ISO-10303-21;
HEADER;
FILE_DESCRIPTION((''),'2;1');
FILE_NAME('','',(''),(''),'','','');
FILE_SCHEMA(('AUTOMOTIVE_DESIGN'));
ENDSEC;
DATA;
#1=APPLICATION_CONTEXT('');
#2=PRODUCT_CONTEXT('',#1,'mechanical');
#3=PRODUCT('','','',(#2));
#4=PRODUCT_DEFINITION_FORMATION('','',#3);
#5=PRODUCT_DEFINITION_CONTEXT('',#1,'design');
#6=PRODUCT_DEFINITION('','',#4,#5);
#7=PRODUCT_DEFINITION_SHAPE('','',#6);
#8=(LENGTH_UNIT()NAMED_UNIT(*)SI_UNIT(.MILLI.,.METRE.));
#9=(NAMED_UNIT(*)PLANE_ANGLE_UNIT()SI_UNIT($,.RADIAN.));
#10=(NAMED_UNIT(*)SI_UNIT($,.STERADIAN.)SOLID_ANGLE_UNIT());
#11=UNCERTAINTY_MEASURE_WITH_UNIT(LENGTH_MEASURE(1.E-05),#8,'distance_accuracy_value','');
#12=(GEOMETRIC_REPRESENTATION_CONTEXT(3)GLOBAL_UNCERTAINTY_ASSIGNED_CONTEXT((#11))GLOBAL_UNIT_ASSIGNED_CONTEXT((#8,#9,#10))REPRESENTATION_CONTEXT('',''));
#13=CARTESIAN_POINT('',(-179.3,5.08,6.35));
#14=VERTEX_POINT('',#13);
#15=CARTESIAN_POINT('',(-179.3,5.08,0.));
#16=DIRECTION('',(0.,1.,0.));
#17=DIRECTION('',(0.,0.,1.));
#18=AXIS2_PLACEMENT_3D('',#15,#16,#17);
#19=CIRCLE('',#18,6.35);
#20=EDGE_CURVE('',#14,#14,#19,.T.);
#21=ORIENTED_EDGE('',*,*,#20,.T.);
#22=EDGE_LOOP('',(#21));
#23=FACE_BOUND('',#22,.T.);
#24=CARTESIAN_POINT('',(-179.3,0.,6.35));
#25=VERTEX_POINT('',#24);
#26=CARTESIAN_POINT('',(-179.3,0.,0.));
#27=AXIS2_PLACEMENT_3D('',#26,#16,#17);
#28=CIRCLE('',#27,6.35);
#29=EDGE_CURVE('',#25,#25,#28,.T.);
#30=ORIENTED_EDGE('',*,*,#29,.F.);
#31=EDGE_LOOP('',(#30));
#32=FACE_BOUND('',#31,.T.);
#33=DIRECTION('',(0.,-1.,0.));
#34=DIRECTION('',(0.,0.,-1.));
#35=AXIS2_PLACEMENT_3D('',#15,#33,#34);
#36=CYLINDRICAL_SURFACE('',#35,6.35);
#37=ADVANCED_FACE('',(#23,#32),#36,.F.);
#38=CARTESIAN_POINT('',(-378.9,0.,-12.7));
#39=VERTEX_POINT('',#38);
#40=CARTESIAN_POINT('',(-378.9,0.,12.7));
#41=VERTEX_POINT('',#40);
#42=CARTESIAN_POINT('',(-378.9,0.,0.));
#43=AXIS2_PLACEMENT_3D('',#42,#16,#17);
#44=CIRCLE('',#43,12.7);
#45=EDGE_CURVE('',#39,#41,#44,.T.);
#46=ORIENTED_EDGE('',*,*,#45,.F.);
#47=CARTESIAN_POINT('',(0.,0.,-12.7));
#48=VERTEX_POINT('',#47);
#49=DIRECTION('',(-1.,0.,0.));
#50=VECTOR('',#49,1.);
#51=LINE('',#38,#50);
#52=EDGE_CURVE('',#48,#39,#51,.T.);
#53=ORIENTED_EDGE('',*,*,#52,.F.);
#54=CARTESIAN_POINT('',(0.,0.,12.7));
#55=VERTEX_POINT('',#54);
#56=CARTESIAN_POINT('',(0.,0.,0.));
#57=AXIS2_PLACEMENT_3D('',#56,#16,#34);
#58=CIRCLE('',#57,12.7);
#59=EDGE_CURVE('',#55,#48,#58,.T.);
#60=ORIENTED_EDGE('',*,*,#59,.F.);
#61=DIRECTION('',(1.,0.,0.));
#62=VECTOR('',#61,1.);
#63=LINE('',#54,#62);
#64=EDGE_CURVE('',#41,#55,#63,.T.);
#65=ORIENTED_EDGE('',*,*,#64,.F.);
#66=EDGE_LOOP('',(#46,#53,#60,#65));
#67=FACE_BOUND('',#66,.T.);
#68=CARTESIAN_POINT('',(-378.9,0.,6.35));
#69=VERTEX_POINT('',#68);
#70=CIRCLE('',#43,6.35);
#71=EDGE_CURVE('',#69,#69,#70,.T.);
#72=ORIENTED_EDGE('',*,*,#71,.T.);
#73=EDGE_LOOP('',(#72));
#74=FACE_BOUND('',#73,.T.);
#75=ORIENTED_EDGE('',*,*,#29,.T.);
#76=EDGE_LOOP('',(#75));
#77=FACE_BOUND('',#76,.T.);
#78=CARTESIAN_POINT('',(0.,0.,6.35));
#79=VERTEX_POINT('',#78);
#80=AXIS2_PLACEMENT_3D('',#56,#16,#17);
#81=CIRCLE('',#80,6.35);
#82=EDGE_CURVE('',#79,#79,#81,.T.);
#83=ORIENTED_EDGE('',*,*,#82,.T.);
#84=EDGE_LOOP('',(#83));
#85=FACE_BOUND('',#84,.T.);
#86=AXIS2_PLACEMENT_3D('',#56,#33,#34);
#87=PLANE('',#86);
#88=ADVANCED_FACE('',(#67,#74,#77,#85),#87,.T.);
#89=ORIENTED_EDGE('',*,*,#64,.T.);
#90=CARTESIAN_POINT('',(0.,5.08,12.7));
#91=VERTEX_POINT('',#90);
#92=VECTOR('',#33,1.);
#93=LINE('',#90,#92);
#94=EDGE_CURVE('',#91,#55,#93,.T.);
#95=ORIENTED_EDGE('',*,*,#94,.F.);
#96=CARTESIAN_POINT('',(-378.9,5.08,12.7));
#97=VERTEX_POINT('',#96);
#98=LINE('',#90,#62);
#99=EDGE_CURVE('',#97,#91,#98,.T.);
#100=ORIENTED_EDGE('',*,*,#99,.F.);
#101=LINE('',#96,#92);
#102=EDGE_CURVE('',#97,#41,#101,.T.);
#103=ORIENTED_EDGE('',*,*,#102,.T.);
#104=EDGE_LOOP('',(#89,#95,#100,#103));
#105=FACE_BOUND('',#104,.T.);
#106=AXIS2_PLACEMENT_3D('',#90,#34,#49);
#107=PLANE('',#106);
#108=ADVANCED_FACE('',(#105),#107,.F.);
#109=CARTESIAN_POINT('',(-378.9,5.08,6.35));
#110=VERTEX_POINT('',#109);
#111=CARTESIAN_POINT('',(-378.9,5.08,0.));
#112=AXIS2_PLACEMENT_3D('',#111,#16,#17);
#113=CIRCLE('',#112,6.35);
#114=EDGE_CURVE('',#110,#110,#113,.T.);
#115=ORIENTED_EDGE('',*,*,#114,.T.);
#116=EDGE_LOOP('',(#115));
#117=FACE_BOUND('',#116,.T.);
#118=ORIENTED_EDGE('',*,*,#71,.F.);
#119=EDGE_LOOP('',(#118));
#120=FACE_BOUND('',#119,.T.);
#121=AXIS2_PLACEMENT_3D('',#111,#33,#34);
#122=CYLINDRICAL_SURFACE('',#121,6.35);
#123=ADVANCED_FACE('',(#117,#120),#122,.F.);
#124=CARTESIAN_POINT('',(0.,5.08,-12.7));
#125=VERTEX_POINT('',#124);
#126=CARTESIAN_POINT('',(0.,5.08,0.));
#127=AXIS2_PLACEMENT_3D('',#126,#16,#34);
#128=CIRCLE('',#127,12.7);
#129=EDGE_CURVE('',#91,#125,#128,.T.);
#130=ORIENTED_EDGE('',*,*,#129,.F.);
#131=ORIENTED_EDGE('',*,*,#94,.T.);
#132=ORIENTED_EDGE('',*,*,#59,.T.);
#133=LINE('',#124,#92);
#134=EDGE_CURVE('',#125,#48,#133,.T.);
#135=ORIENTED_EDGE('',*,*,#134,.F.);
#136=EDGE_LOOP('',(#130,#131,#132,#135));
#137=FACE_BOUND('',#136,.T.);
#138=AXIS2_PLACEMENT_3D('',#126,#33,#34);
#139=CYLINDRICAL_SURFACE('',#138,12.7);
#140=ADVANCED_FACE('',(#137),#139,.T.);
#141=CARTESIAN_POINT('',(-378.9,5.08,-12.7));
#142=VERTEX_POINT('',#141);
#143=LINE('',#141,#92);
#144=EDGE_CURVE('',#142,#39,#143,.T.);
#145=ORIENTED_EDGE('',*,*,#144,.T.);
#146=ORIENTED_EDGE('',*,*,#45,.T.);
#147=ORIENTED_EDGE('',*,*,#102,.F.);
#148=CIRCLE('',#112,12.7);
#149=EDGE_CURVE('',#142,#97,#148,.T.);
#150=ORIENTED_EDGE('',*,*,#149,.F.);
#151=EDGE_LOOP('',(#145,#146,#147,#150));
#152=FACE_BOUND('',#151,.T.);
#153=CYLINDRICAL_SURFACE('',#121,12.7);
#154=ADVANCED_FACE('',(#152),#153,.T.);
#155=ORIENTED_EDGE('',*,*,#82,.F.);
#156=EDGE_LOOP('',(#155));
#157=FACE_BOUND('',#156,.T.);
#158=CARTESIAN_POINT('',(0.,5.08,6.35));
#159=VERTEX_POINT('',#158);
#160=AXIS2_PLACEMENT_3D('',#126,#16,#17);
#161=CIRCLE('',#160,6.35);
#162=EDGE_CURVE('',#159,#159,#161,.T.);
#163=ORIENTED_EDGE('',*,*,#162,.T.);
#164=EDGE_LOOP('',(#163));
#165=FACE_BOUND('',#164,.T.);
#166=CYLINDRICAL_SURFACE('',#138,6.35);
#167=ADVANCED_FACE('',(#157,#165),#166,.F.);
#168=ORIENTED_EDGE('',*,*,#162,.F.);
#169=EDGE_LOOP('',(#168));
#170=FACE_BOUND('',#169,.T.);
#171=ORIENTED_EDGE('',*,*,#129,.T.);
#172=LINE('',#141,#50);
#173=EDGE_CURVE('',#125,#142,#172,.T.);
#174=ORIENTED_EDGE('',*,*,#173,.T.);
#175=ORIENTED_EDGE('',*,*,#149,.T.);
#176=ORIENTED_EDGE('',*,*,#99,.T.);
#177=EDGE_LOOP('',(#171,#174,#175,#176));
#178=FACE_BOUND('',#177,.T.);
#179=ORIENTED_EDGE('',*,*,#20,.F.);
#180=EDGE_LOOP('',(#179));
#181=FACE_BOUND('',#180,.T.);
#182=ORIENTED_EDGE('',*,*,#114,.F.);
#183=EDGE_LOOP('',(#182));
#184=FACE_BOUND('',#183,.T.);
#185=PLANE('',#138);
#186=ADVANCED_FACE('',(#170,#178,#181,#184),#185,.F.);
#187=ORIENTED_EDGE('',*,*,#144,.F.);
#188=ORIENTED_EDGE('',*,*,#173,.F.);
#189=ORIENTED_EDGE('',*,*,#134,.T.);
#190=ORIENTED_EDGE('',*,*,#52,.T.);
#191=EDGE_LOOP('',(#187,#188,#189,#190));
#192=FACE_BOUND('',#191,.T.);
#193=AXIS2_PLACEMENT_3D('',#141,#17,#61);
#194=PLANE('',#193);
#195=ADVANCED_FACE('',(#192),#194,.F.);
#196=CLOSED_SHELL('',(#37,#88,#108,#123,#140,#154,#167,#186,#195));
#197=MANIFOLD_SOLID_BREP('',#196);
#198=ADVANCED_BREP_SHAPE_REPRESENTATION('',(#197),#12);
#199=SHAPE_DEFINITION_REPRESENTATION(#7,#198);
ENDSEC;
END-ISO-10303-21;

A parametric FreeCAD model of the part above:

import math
import FreeCAD as App
import Part
import Sketcher

V = App.Vector
Q = App.Units.Quantity

doc = App.newDocument("Part")
body = doc.addObject("PartDesign::Body", "Body")

# Sketch on XZ plane
sketch1 = body.newObject("Sketcher::SketchObject", "Sketch")
sketch1.AttachmentSupport = (doc.getObject("XZ_Plane"), [""])
sketch1.MapMode = "FlatFace"
sketch1.addGeometry([
    Part.LineSegment(V(0, -12.7, 0), V(-378.9, -12.7, 0)),  # 0
    Part.ArcOfCircle(Part.Circle(V(-378.9, 0, 0), V(0, 0, 1), 12.7), math.radians(90), math.radians(270)),  # 1
    Part.LineSegment(V(-378.9, 12.7, 0), V(0, 12.7, 0)),  # 2
    Part.ArcOfCircle(Part.Circle(V(0, 0, 0), V(0, 0, 1), 12.7), math.radians(-90), math.radians(90)),  # 3
    Part.Circle(V(0, 0, 0), V(0, 0, 1), 6.35),  # 4
    Part.Circle(V(-179.3, 0, 0), V(0, 0, 1), 6.35),  # 5
    Part.Circle(V(-378.9, 0, 0), V(0, 0, 1), 6.35),  # 6
], False)
sketch1.addConstraint([
    Sketcher.Constraint("Tangent", 0, 2, 1, 2),
    Sketcher.Constraint("Tangent", 1, 1, 2, 1),
    Sketcher.Constraint("Tangent", 2, 2, 3, 2),
    Sketcher.Constraint("Tangent", 3, 1, 0, 1),
    Sketcher.Constraint("Horizontal", 0),
    Sketcher.Constraint("Horizontal", 2),
    Sketcher.Constraint("Coincident", 3, 3, -1, 1),
    Sketcher.Constraint("Coincident", 4, 3, -1, 1),
    Sketcher.Constraint("Coincident", 6, 3, 1, 3),
    Sketcher.Constraint("Equal", 4, 5),
    Sketcher.Constraint("Equal", 5, 6),
    Sketcher.Constraint("PointOnObject", 5, 3, -1),
    Sketcher.Constraint("Diameter", 4, Q("0.5 in")),
    Sketcher.Constraint("Radius", 1, Q("0.5 in")),
    Sketcher.Constraint("DistanceX", 0, 2, 0, 1, 378.9),
    Sketcher.Constraint("DistanceX", 5, 3, -1, 1, 179.3),
])
pad1 = body.newObject("PartDesign::Pad", "Pad")
pad1.Profile = sketch1
pad1.Length = Q("0.2 in")
pad1.Reversed = True

doc.recompute()
